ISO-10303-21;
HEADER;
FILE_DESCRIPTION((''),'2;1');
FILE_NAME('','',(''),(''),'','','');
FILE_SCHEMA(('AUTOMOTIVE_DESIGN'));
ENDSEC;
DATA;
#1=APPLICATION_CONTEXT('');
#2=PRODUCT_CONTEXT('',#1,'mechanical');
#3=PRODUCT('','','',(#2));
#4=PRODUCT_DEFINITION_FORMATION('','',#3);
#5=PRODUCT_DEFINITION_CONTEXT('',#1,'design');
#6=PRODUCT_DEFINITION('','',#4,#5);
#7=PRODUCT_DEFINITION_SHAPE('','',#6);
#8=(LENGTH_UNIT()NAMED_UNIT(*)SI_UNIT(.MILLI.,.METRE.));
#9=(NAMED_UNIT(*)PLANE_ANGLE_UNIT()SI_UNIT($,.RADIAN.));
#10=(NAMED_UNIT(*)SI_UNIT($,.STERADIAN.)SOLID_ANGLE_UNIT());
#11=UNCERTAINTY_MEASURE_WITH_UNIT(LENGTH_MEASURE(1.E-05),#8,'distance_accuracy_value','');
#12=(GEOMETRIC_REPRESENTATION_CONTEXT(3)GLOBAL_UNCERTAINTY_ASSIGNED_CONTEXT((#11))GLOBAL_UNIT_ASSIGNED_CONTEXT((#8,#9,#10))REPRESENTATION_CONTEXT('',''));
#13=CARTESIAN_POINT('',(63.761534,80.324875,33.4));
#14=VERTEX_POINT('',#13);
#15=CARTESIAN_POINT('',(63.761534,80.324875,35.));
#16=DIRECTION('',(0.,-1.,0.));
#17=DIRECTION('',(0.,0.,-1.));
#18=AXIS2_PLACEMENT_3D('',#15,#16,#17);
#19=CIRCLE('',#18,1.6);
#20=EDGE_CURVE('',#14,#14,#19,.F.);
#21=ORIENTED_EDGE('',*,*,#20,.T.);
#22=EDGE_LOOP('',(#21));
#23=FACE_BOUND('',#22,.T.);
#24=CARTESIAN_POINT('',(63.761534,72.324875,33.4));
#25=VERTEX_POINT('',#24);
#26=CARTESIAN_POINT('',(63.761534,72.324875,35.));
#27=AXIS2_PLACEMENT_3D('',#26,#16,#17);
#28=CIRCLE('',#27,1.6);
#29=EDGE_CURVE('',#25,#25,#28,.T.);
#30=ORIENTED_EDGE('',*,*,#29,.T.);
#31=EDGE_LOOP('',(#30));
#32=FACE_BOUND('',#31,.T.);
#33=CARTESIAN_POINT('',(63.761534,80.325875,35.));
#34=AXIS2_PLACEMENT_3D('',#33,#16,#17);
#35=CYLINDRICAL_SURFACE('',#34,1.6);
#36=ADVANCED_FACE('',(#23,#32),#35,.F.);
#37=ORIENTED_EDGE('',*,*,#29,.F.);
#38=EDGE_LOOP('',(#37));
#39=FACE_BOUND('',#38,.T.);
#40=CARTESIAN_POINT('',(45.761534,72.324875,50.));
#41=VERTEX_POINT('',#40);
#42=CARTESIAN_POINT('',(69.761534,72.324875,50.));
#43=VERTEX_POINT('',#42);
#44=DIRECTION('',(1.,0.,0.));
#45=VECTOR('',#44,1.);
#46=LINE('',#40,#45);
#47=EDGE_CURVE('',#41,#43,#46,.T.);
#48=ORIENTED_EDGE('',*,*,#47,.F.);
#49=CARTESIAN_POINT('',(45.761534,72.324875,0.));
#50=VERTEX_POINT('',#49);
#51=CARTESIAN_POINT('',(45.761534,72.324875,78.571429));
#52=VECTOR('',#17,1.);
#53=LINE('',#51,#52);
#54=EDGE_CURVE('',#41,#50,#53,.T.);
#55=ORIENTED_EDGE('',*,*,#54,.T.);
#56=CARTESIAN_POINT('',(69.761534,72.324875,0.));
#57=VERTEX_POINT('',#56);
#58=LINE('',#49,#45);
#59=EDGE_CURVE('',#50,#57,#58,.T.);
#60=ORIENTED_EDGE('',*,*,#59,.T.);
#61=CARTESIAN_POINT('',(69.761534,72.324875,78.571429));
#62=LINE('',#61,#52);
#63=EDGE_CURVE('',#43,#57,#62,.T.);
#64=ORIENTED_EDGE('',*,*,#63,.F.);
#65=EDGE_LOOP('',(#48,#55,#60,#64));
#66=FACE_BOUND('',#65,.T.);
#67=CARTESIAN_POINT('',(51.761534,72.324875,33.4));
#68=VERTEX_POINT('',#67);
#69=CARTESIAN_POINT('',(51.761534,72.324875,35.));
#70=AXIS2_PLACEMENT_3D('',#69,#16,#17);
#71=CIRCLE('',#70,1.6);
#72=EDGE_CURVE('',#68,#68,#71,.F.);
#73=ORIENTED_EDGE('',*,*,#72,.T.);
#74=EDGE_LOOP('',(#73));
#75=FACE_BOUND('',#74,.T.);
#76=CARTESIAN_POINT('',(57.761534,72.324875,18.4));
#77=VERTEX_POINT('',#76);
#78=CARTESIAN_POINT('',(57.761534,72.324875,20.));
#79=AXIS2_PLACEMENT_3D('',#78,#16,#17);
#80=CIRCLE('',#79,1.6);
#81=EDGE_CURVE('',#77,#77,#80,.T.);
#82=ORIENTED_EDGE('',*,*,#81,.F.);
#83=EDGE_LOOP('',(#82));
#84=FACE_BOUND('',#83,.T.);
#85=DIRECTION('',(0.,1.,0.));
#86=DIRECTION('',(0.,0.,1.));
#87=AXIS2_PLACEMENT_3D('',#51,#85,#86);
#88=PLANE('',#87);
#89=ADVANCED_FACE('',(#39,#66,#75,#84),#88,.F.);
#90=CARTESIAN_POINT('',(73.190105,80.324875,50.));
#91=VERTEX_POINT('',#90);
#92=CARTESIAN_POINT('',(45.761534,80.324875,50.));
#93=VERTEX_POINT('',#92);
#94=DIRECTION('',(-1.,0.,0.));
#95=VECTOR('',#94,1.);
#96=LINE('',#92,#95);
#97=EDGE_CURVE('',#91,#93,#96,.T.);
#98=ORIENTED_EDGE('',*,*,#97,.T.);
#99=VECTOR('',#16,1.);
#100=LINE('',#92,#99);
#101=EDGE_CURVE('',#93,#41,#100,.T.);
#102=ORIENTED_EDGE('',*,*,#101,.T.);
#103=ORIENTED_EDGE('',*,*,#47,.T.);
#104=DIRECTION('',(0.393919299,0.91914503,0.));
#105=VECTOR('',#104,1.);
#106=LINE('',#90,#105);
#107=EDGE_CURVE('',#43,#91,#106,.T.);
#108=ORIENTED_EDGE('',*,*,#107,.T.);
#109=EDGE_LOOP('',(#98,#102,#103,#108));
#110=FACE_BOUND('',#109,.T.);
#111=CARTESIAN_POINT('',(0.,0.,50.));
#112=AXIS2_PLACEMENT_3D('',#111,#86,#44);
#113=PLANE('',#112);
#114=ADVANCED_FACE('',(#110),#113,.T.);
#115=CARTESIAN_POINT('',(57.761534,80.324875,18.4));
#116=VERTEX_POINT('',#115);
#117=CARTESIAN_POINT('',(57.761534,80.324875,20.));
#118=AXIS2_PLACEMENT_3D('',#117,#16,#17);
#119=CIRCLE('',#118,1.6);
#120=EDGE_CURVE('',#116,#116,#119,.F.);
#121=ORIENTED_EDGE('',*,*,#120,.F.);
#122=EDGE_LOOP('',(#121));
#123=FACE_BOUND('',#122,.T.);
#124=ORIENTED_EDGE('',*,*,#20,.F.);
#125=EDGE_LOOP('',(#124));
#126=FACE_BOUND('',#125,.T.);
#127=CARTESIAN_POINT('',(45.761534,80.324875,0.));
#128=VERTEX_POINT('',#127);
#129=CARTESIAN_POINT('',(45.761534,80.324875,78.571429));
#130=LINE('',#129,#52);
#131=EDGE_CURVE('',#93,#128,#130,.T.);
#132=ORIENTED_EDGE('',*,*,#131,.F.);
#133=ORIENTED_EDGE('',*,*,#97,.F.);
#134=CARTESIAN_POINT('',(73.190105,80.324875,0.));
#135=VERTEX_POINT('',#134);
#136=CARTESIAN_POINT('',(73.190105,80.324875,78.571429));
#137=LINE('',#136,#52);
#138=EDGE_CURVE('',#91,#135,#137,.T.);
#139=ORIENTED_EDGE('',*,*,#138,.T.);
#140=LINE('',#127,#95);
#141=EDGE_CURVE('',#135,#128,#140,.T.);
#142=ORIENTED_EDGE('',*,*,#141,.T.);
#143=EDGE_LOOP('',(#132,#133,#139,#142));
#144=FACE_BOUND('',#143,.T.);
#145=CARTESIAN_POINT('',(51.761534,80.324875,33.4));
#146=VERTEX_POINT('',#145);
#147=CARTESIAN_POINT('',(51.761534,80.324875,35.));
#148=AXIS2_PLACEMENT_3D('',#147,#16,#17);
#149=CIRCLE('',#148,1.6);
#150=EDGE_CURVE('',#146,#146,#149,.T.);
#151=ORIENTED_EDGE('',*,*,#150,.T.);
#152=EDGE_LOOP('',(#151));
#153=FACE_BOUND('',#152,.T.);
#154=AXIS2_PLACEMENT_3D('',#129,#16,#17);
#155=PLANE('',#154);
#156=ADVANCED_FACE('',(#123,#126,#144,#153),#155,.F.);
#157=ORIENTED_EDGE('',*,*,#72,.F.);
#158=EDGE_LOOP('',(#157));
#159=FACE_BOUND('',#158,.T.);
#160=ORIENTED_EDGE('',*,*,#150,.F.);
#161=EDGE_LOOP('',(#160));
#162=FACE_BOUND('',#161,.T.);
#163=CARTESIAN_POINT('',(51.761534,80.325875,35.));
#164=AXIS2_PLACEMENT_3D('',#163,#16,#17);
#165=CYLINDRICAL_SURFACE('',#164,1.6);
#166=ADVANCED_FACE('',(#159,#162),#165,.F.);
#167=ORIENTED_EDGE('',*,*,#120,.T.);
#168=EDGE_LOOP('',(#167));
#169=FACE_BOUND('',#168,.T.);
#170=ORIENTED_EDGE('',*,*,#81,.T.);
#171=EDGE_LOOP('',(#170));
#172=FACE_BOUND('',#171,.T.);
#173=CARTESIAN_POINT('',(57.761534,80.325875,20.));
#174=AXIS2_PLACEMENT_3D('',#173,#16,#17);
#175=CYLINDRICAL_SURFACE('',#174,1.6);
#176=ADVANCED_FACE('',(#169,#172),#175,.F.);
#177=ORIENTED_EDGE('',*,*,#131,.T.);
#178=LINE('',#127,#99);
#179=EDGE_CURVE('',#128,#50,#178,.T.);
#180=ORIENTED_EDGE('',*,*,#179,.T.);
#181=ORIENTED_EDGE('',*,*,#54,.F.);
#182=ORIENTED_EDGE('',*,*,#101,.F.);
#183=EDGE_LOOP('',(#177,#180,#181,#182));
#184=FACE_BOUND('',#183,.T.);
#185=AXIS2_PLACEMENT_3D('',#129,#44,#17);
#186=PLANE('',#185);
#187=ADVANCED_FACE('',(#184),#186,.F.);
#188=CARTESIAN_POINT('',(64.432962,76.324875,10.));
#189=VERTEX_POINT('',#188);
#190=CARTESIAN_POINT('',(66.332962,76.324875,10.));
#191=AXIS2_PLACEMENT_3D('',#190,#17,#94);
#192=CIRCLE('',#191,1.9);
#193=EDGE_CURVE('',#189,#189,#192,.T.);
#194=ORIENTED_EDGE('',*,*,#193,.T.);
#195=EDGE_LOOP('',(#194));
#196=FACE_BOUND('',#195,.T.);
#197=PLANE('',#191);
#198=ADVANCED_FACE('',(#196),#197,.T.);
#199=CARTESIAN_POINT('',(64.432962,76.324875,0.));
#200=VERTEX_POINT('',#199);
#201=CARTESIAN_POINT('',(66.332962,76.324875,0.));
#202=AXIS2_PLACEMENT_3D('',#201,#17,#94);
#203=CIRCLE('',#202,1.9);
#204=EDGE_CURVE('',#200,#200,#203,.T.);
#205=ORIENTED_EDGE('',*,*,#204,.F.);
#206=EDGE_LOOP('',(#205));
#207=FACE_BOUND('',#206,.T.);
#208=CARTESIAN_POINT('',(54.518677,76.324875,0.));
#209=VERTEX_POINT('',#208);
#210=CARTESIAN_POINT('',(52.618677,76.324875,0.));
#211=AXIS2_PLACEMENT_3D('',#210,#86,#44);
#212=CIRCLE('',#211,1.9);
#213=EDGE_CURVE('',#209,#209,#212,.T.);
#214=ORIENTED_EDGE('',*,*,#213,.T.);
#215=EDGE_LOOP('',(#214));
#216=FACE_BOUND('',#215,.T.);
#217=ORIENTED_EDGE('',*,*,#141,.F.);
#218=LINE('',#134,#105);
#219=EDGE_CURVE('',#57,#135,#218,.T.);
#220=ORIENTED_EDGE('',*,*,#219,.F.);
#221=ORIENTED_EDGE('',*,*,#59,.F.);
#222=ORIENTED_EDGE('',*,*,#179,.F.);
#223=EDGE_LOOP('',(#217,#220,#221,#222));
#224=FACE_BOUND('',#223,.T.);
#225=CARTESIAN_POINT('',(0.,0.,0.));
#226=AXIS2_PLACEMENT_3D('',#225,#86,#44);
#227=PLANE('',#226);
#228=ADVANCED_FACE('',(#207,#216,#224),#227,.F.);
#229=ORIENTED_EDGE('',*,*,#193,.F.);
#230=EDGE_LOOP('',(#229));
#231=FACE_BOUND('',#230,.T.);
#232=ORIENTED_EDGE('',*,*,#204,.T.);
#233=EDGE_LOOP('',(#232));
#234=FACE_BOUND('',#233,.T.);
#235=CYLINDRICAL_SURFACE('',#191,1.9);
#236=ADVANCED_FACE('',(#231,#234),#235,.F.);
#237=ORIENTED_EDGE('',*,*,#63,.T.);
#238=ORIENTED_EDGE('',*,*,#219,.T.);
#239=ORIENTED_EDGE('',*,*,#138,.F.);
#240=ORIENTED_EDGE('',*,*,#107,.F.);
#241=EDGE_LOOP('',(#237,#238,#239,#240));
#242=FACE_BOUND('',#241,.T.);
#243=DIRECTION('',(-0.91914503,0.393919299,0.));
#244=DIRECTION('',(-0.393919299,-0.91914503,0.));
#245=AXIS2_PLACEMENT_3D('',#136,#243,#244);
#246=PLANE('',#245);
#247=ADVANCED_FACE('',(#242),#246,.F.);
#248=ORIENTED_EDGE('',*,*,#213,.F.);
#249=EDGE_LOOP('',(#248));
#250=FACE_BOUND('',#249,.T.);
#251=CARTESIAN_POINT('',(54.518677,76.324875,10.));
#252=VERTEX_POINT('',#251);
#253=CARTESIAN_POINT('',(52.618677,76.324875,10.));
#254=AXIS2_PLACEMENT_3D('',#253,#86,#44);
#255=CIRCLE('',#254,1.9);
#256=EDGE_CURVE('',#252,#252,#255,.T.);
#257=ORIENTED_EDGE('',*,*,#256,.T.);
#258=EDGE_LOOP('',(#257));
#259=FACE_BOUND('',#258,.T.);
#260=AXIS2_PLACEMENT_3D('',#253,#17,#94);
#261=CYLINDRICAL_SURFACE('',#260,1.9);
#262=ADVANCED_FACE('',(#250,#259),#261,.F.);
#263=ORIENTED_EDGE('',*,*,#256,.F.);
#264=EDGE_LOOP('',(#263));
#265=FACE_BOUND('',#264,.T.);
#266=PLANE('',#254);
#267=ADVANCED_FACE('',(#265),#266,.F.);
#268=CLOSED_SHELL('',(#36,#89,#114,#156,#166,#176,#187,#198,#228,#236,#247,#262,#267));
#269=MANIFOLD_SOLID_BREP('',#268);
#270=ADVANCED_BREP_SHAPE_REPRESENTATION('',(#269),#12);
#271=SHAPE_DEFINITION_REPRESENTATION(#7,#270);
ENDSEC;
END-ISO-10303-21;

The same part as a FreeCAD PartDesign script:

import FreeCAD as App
import Part
import Sketcher

V = App.Vector

doc = App.newDocument("Part")
body = doc.addObject("PartDesign::Body", "Body")

# Sketch on XY plane
sketch1 = body.newObject("Sketcher::SketchObject", "Sketch")
sketch1.AttachmentSupport = (doc.getObject("XY_Plane"), [""])
sketch1.MapMode = "FlatFace"
sketch1.addGeometry(Part.LineSegment(V(73, 80, 0), V(46, 80, 0)), False)
sketch1.addGeometry(Part.LineSegment(V(46, 80, 0), V(46, 72, 0)), False)
sketch1.addGeometry(Part.LineSegment(V(46, 72, 0), V(70, 72, 0)), False)
sketch1.addGeometry(Part.LineSegment(V(70, 72, 0), V(73, 80, 0)), False)
sketch1.addConstraint(Sketcher.Constraint("Coincident", 0, 2, 1, 1))
sketch1.addConstraint(Sketcher.Constraint("Coincident", 1, 2, 2, 1))
sketch1.addConstraint(Sketcher.Constraint("Coincident", 2, 2, 3, 1))
sketch1.addConstraint(Sketcher.Constraint("Coincident", 3, 2, 0, 1))
sketch1.addConstraint(Sketcher.Constraint("Horizontal", 0))
sketch1.addConstraint(Sketcher.Constraint("Vertical", 1))
sketch1.addConstraint(Sketcher.Constraint("Horizontal", 2))
sketch1.addConstraint(Sketcher.Constraint("DistanceX", 2, 1, 2, 2, 24.0))
sketch1.addConstraint(Sketcher.Constraint("DistanceY", 1, 2, 1, 1, 8.0))
sketch1.addConstraint(Sketcher.Constraint("DistanceX", 0, 2, 0, 1, 27.428571))
sketch1.addConstraint(Sketcher.Constraint("DistanceX", -1, 1, 0, 2, 45.761534))
sketch1.addConstraint(Sketcher.Constraint("DistanceY", -1, 1, 0, 2, 80.324875))
pad1 = body.newObject("PartDesign::Pad", "Pad")
pad1.Profile = sketch1
pad1.Length = 50

# Sketch on XZ plane
sketch2 = body.newObject("Sketcher::SketchObject", "Sketch001")
sketch2.AttachmentSupport = (doc.getObject("XZ_Plane"), [""])
sketch2.MapMode = "FlatFace"
sketch2.AttachmentOffset = App.Placement(V(0, 0, -72.324875), App.Rotation())
sketch2.addGeometry(Part.Circle(V(63.8, 35, 0), V(0, 0, 1), 1.6), False)
sketch2.addConstraint(Sketcher.Constraint("Diameter", 0, 3.2))
sketch2.addConstraint(Sketcher.Constraint("DistanceY", -1, 1, 0, 3, 35.0))
sketch2.addConstraint(Sketcher.Constraint("DistanceX", -1, 1, 0, 3, 63.761534))
pocket1 = body.newObject("PartDesign::Pocket", "Pocket")
pocket1.Profile = sketch2
pocket1.Type = "UpToFirst"

# Sketch on XZ plane
sketch3 = body.newObject("Sketcher::SketchObject", "Sketch002")
sketch3.AttachmentSupport = (doc.getObject("XZ_Plane"), [""])
sketch3.MapMode = "FlatFace"
sketch3.AttachmentOffset = App.Placement(V(0, 0, -72.324875), App.Rotation())
sketch3.addGeometry(Part.Circle(V(57.8, 20, 0), V(0, 0, 1), 1.6), False)
sketch3.addConstraint(Sketcher.Constraint("Diameter", 0, 3.2))
sketch3.addConstraint(Sketcher.Constraint("DistanceY", -1, 1, 0, 3, 20.0))
sketch3.addConstraint(Sketcher.Constraint("DistanceX", -1, 1, 0, 3, 57.761534))
pocket2 = body.newObject("PartDesign::Pocket", "Pocket001")
pocket2.Profile = sketch3
pocket2.Type = "UpToFirst"

# Sketch on XZ plane
sketch4 = body.newObject("Sketcher::SketchObject", "Sketch003")
sketch4.AttachmentSupport = (doc.getObject("XZ_Plane"), [""])
sketch4.MapMode = "FlatFace"
sketch4.AttachmentOffset = App.Placement(V(0, 0, -72.324875), App.Rotation())
sketch4.addGeometry(Part.Circle(V(51.8, 35, 0), V(0, 0, 1), 1.6), False)
sketch4.addConstraint(Sketcher.Constraint("Diameter", 0, 3.2))
sketch4.addConstraint(Sketcher.Constraint("DistanceY", -1, 1, 0, 3, 35.0))
sketch4.addConstraint(Sketcher.Constraint("DistanceX", -1, 1, 0, 3, 51.761534))
pocket3 = body.newObject("PartDesign::Pocket", "Pocket002")
pocket3.Profile = sketch4
pocket3.Type = "UpToFirst"

# Sketch on XY plane
sketch5 = body.newObject("Sketcher::SketchObject", "Sketch004")
sketch5.AttachmentSupport = (doc.getObject("XY_Plane"), [""])
sketch5.MapMode = "FlatFace"
sketch5.addGeometry(Part.Circle(V(66.3, 76.3, 0), V(0, 0, 1), 1.9), False)
sketch5.addGeometry(Part.Circle(V(52.6, 76.3, 0), V(0, 0, 1), 1.9), False)
sketch5.addConstraint(Sketcher.Constraint("Equal", 0, 1))
sketch5.addConstraint(Sketcher.Constraint("Horizontal", 0, 3, 1, 3))
sketch5.addConstraint(Sketcher.Constraint("Diameter", 0, 3.8))
sketch5.addConstraint(Sketcher.Constraint("DistanceX", -1, 1, 0, 3, 66.332962))
sketch5.addConstraint(Sketcher.Constraint("DistanceY", -1, 1, 0, 3, 76.324875))
sketch5.addConstraint(Sketcher.Constraint("DistanceX", -1, 1, 1, 3, 52.618677))
pocket4 = body.newObject("PartDesign::Pocket", "Pocket003")
pocket4.Profile = sketch5
pocket4.Length = 10
pocket4.Reversed = True

doc.recompute()
